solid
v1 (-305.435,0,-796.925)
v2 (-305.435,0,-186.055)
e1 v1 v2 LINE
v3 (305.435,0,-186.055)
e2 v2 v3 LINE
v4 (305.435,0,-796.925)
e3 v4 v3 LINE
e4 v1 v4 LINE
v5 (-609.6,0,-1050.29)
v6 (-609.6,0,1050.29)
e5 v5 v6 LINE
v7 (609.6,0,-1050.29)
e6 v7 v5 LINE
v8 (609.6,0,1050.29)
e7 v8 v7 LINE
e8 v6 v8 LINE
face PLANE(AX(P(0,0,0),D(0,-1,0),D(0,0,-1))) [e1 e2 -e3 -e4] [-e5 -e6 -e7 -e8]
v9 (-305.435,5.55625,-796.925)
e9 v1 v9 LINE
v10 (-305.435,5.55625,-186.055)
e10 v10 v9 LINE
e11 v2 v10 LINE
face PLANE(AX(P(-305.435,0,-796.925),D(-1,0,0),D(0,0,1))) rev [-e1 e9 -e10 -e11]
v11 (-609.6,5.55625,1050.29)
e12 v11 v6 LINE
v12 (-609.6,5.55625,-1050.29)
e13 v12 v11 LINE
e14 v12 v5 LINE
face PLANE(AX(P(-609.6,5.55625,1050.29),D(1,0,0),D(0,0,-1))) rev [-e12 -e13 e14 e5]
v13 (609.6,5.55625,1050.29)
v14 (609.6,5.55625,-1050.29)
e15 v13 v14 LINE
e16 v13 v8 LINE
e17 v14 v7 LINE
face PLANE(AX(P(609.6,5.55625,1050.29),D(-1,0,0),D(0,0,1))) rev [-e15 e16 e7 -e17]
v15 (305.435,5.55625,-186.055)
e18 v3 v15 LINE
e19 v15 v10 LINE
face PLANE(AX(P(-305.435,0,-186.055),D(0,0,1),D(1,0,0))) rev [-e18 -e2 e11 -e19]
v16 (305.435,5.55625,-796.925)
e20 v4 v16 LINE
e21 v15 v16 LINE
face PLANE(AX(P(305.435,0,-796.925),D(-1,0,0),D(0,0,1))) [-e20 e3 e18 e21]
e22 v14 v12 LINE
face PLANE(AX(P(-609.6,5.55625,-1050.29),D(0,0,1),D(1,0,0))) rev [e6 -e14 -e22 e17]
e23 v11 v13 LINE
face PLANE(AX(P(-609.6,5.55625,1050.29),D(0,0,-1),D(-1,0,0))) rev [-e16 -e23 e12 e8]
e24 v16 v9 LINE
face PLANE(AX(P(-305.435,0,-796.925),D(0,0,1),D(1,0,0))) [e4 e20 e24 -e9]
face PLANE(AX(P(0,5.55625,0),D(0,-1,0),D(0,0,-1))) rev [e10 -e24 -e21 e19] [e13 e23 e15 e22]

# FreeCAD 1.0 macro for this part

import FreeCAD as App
import Part
import Sketcher
from FreeCAD import Vector
Q = App.Units.Quantity

doc = App.newDocument("Part")
body = doc.addObject("PartDesign::Body", "Body")

sketch1 = body.newObject("Sketcher::SketchObject", "Sketch")
sketch1.AttachmentSupport = (doc.getObject("XZ_Plane"), [""])
sketch1.MapMode = "FlatFace"
sketch1.addGeometry([
    Part.LineSegment(Vector(-610, -1050, 0), Vector(-610, 1050, 0)),
    Part.LineSegment(Vector(-610, 1050, 0), Vector(610, 1050, 0)),
    Part.LineSegment(Vector(610, 1050, 0), Vector(610, -1050, 0)),
    Part.LineSegment(Vector(610, -1050, 0), Vector(-610, -1050, 0)),
], False)
sketch1.addConstraint([
    Sketcher.Constraint("Coincident", 0, 2, 1, 1),
    Sketcher.Constraint("Coincident", 1, 2, 2, 1),
    Sketcher.Constraint("Coincident", 2, 2, 3, 1),
    Sketcher.Constraint("Coincident", 3, 2, 0, 1),
    Sketcher.Constraint("Vertical", 0),
    Sketcher.Constraint("Horizontal", 1),
    Sketcher.Constraint("Vertical", 2),
    Sketcher.Constraint("Horizontal", 3),
    Sketcher.Constraint("Symmetric", 0, 2, 2, 2, -1, 1),
    Sketcher.Constraint("DistanceX", 1, 1, 1, 2, Q("48 in")),
    Sketcher.Constraint("DistanceY", 0, 1, 0, 2, Q("82.7 in")),
])
pad1 = body.newObject("PartDesign::Pad", "Pad")
pad1.Profile = sketch1
pad1.Length = Q("0.21875 in")
pad1.Reversed = True

sketch2 = body.newObject("Sketcher::SketchObject", "Sketch001")
sketch2.AttachmentSupport = (doc.getObject("XZ_Plane"), [""])
sketch2.MapMode = "FlatFace"
sketch2.AttachmentOffset = App.Placement(Vector(0, 0, -0.21875 * 25.4), App.Rotation())
sketch2.addGeometry([
    Part.LineSegment(Vector(-305, -797, 0), Vector(-305, -186, 0)),
    Part.LineSegment(Vector(-305, -186, 0), Vector(305, -186, 0)),
    Part.LineSegment(Vector(305, -186, 0), Vector(305, -797, 0)),
    Part.LineSegment(Vector(305, -797, 0), Vector(-305, -797, 0)),
], False)
sketch2.addConstraint([
    Sketcher.Constraint("Coincident", 0, 2, 1, 1),
    Sketcher.Constraint("Coincident", 1, 2, 2, 1),
    Sketcher.Constraint("Coincident", 2, 2, 3, 1),
    Sketcher.Constraint("Coincident", 3, 2, 0, 1),
    Sketcher.Constraint("Vertical", 0),
    Sketcher.Constraint("Horizontal", 1),
    Sketcher.Constraint("Vertical", 2),
    Sketcher.Constraint("Horizontal", 3),
    Sketcher.Constraint("Equal", 3, 0),
    Sketcher.Constraint("DistanceX", 1, 1, 1, 2, Q("24.05 in")),
    Sketcher.Constraint("DistanceX", 0, 2, -1, 1, Q("12.025 in")),
    Sketcher.Constraint("DistanceY", 0, 2, -1, 1, Q("7.325 in")),
])
pocket1 = body.newObject("PartDesign::Pocket", "Pocket")
pocket1.Profile = sketch2
pocket1.Type = "ThroughAll"
pocket1.Midplane = True

doc.recompute()
